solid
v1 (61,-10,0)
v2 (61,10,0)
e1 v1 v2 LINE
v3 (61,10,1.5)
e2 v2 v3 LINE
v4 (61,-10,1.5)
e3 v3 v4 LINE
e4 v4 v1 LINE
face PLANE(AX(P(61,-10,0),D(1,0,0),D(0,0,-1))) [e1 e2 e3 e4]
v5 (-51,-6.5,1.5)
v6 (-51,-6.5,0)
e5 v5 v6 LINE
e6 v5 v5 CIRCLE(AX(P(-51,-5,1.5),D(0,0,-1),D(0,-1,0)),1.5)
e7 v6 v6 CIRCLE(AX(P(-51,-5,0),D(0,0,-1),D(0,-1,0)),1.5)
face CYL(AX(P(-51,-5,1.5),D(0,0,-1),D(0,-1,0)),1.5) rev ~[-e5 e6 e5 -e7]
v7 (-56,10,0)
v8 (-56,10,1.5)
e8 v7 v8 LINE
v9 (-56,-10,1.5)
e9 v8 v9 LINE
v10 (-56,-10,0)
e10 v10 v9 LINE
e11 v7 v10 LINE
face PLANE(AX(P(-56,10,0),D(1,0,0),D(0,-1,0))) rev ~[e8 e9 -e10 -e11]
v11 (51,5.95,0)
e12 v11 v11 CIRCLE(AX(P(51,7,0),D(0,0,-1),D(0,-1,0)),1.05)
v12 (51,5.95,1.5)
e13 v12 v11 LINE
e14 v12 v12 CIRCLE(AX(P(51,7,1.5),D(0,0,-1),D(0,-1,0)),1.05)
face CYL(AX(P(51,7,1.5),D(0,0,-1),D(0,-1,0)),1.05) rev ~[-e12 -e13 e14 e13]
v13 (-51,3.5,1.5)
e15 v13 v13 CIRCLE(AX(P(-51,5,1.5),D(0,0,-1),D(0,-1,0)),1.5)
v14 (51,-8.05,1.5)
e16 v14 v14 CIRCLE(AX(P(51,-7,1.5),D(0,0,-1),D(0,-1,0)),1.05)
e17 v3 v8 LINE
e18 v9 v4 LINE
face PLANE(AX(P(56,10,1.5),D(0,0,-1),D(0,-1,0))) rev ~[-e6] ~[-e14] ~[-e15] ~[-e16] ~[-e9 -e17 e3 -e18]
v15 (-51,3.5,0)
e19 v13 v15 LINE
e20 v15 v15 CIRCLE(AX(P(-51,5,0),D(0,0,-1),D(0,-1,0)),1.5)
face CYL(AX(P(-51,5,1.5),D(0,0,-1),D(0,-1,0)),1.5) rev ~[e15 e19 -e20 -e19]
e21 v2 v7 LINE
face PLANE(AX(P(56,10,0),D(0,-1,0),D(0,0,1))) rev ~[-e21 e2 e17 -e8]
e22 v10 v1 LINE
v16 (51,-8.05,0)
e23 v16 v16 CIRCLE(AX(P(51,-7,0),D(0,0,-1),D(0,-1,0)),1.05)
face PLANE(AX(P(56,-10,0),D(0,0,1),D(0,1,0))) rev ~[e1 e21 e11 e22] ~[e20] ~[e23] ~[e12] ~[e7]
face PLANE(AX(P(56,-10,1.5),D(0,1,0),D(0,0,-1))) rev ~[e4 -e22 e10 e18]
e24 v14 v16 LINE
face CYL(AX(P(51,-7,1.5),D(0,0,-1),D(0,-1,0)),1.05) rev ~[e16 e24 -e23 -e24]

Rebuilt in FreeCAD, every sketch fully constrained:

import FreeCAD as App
import Part
import Sketcher
from FreeCAD import Vector
Q = App.Units.Quantity

doc = App.newDocument("Part")
params = doc.addObject("Spreadsheet::Sheet", "Params")
for row, (alias, value) in enumerate([
    ("sketch1_width", "112 mm"),
    ("sketch1_height", "20 mm"),
    ("pad1_length", "1.5 mm"),
    ("sketch2_diameter", "3 mm"),
    ("hole_diameter", "3 mm"),
    ("sketch3_diameter", "2.1 mm"),
    ("hole2_diameter", "2.1 mm"),
    ("sketch4_width", "20 mm"),
    ("sketch4_height", "1.5 mm"),
    ("pad2_length", "5 mm"),
], start=1):
    params.set(f"A{row}", alias)
    params.set(f"B{row}", "=" + value)
    params.setAlias(f"B{row}", alias)

body = doc.addObject("PartDesign::Body", "Body")

# Sketch on XY plane
sketch1 = body.newObject("Sketcher::SketchObject", "Sketch")
sketch1.AttachmentSupport = (doc.getObject("XY_Plane"), [""])
sketch1.MapMode = "FlatFace"
sketch1.addGeometry([
    Part.LineSegment(Vector(56, -10, 0), Vector(56, 10, 0)),
    Part.LineSegment(Vector(56, 10, 0), Vector(-56, 10, 0)),
    Part.LineSegment(Vector(-56, 10, 0), Vector(-56, -10, 0)),
    Part.LineSegment(Vector(-56, -10, 0), Vector(56, -10, 0)),
], False)
sketch1.addConstraint([
    Sketcher.Constraint("Coincident", 0, 2, 1, 1),
    Sketcher.Constraint("Coincident", 1, 2, 2, 1),
    Sketcher.Constraint("Coincident", 2, 2, 3, 1),
    Sketcher.Constraint("Coincident", 3, 2, 0, 1),
    Sketcher.Constraint("Vertical", 0),
    Sketcher.Constraint("Horizontal", 1),
    Sketcher.Constraint("Vertical", 2),
    Sketcher.Constraint("Horizontal", 3),
    Sketcher.Constraint("Symmetric", 0, 2, 2, 2, -1, 1),
    Sketcher.Constraint("DistanceX", 1, 2, 1, 1, Q("112 mm")),
    Sketcher.Constraint("DistanceY", 0, 1, 0, 2, Q("20 mm")),
])
sketch1.setExpression("Constraints[9]", "Params.sketch1_width")
sketch1.setExpression("Constraints[10]", "Params.sketch1_height")
pad1 = body.newObject("PartDesign::Pad", "Pad")
pad1.Profile = sketch1
pad1.setExpression("Length", "Params.pad1_length")

# Sketch on XY plane
sketch2 = body.newObject("Sketcher::SketchObject", "Sketch001")
sketch2.AttachmentSupport = (doc.getObject("XY_Plane"), [""])
sketch2.MapMode = "FlatFace"
sketch2.AttachmentOffset = App.Placement(Vector(0, 0, 1.5), App.Rotation())
sketch2.addGeometry([
    Part.Circle(Vector(-51, 5, 0), Vector(0, 0, 1), 1.5),
    Part.Circle(Vector(-51, -5, 0), Vector(0, 0, 1), 1.5),
], False)
sketch2.addConstraint([
    Sketcher.Constraint("Equal", 0, 1),
    Sketcher.Constraint("Symmetric", 0, 3, 1, 3, -1),
    Sketcher.Constraint("Diameter", 0, Q("3 mm")),
    Sketcher.Constraint("DistanceX", 0, 3, -1, 1, Q("51 mm")),
    Sketcher.Constraint("DistanceY", -1, 1, 0, 3, Q("5 mm")),
])
sketch2.setExpression("Constraints[2]", "Params.sketch2_diameter")
doc.recompute()
hole = body.newObject("PartDesign::Hole", "Hole")
hole.Profile = sketch2
hole.ThreadType = "None"
hole.setExpression("Diameter", "Params.hole_diameter")
hole.DepthType = "ThroughAll"

# Sketch on XY plane
sketch3 = body.newObject("Sketcher::SketchObject", "Sketch002")
sketch3.AttachmentSupport = (doc.getObject("XY_Plane"), [""])
sketch3.MapMode = "FlatFace"
sketch3.AttachmentOffset = App.Placement(Vector(0, 0, 1.5), App.Rotation())
sketch3.addGeometry([
    Part.Circle(Vector(51, 7, 0), Vector(0, 0, 1), 1.05),
    Part.Circle(Vector(51, -7, 0), Vector(0, 0, 1), 1.05),
], False)
sketch3.addConstraint([
    Sketcher.Constraint("Equal", 0, 1),
    Sketcher.Constraint("Symmetric", 0, 3, 1, 3, -1),
    Sketcher.Constraint("Diameter", 0, Q("2.1 mm")),
    Sketcher.Constraint("DistanceX", -1, 1, 0, 3, Q("51 mm")),
    Sketcher.Constraint("DistanceY", -1, 1, 0, 3, Q("7 mm")),
])
sketch3.setExpression("Constraints[2]", "Params.sketch3_diameter")
doc.recompute()
hole2 = body.newObject("PartDesign::Hole", "Hole001")
hole2.Profile = sketch3
hole2.ThreadType = "None"
hole2.setExpression("Diameter", "Params.hole2_diameter")
hole2.DepthType = "ThroughAll"

# Sketch on YZ plane
sketch4 = body.newObject("Sketcher::SketchObject", "Sketch003")
sketch4.AttachmentSupport = (doc.getObject("YZ_Plane"), [""])
sketch4.MapMode = "FlatFace"
sketch4.AttachmentOffset = App.Placement(Vector(0, 0, 56), App.Rotation())
sketch4.addGeometry([
    Part.LineSegment(Vector(10, 1.5, 0), Vector(-10, 1.5, 0)),
    Part.LineSegment(Vector(-10, 1.5, 0), Vector(-10, 0, 0)),
    Part.LineSegment(Vector(-10, 0, 0), Vector(10, 0, 0)),
    Part.LineSegment(Vector(10, 0, 0), Vector(10, 1.5, 0)),
], False)
sketch4.addConstraint([
    Sketcher.Constraint("Coincident", 0, 2, 1, 1),
    Sketcher.Constraint("Coincident", 1, 2, 2, 1),
    Sketcher.Constraint("Coincident", 2, 2, 3, 1),
    Sketcher.Constraint("Coincident", 3, 2, 0, 1),
    Sketcher.Constraint("Horizontal", 0),
    Sketcher.Constraint("Vertical", 1),
    Sketcher.Constraint("Horizontal", 2),
    Sketcher.Constraint("Vertical", 3),
    Sketcher.Constraint("Symmetric", 1, 2, 2, 2, -1, 1),
    Sketcher.Constraint("DistanceX", 0, 2, 0, 1, Q("20 mm")),
    Sketcher.Constraint("DistanceY", 1, 2, 1, 1, Q("1.5 mm")),
])
sketch4.setExpression("Constraints[9]", "Params.sketch4_width")
sketch4.setExpression("Constraints[10]", "Params.sketch4_height")
pad2 = body.newObject("PartDesign::Pad", "Pad001")
pad2.Profile = sketch4
pad2.setExpression("Length", "Params.pad2_length")

doc.recompute()
